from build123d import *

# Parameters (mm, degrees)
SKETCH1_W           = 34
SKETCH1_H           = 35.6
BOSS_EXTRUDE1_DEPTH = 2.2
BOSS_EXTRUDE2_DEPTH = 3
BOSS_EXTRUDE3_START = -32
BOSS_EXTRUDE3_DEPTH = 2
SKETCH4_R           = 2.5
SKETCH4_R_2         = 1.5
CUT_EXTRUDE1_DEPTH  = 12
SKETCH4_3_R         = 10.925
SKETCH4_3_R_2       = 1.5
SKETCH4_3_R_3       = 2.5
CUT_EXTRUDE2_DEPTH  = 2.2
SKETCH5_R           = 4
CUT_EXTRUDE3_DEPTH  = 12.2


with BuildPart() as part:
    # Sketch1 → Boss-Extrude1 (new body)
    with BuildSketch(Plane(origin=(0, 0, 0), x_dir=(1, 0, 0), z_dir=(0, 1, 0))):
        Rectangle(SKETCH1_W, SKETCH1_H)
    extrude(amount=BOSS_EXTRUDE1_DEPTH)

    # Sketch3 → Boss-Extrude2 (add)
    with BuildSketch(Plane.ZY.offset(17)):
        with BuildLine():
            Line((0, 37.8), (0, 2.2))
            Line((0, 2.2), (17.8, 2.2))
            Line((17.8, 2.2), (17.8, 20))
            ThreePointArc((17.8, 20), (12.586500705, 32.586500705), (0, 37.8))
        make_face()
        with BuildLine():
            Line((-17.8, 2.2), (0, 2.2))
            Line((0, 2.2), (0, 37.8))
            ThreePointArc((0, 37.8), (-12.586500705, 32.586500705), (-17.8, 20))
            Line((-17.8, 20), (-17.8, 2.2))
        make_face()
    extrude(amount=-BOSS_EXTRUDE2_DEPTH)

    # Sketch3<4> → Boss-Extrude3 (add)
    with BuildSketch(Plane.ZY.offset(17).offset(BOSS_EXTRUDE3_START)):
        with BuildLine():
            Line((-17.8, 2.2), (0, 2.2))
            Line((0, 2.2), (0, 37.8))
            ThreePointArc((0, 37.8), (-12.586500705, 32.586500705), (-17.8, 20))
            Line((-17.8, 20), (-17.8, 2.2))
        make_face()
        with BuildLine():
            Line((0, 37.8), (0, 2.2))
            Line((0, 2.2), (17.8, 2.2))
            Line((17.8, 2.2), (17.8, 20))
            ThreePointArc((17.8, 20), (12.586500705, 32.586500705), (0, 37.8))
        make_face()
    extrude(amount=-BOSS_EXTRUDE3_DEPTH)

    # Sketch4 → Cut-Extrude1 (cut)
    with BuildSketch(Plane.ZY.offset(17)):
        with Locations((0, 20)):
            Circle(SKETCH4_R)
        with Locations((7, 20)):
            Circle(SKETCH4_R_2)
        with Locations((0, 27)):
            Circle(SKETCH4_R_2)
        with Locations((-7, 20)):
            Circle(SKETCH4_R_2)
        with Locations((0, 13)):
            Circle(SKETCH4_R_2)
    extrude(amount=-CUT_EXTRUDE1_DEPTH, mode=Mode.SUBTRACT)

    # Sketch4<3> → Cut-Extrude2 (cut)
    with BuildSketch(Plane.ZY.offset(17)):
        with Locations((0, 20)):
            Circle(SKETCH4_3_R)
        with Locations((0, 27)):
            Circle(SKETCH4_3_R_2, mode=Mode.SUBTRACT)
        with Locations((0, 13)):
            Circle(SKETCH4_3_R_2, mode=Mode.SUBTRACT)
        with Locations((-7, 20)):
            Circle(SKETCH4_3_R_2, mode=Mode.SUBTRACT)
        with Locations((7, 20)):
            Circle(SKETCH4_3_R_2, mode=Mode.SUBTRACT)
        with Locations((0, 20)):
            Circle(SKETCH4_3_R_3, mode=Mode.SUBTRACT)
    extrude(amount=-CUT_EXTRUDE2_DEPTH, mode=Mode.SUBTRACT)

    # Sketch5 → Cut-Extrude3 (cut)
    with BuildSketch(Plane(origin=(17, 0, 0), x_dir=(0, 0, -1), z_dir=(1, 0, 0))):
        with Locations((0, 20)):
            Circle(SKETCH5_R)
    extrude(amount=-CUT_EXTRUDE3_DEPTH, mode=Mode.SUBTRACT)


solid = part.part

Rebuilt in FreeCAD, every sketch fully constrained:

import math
import FreeCAD as App
import Part
import Sketcher

V = App.Vector


def add_polygon(sketch, points):
    """Adds a closed chain of lines whose ends are joined by coincident constraints."""
    first, n = sketch.GeometryCount, len(points)
    for a, b in zip(points, points[1:] + points[:1]):
        sketch.addGeometry(Part.LineSegment(App.Vector(*a, 0), App.Vector(*b, 0)), False)
    for i in range(n):
        sketch.addConstraint(Sketcher.Constraint("Coincident", first + i, 2, first + (i + 1) % n, 1))

doc = App.newDocument("Part")
params = doc.addObject("Spreadsheet::Sheet", "Params")
for row, (alias, value) in enumerate([
    ("sketch1_width", "34 mm"),
    ("sketch1_height", "35.6 mm"),
    ("pad1_length", "2.2 mm"),
    ("sketch2_radius", "17.8 mm"),
    ("sketch2_width", "17.8 mm"),
    ("pad2_length", "3 mm"),
    ("sketch3_radius", "17.8 mm"),
    ("sketch3_width", "17.8 mm"),
    ("pad3_length", "2 mm"),
    ("sketch4_diameter", "5 mm"),
    ("sketch4_diameter2", "3 mm"),
    ("pocket1_length", "12 mm"),
    ("sketch5_diameter", "3 mm"),
    ("sketch5_diameter2", "5 mm"),
    ("sketch5_diameter3", "21.85 mm"),
    ("pocket2_length", "2.2 mm"),
    ("sketch6_diameter", "8 mm"),
    ("pocket3_length", "12.2 mm"),
], start=1):
    params.set(f"A{row}", alias)
    params.set(f"B{row}", "=" + value)
    params.setAlias(f"B{row}", alias)

body = doc.addObject("PartDesign::Body", "Body")

sketch1 = doc.addObject("Sketcher::SketchObject", "Sketch")
body.addObject(sketch1)
sketch1.AttachmentSupport = (doc.XZ_Plane, [""])
sketch1.MapMode = "FlatFace"
add_polygon(sketch1, [(-17, -18), (-17, 18), (17, 18), (17, -18)])
sketch1.addConstraint([
    Sketcher.Constraint("Vertical", 0),
    Sketcher.Constraint("Horizontal", 1),
    Sketcher.Constraint("Vertical", 2),
    Sketcher.Constraint("Horizontal", 3),
    Sketcher.Constraint("Symmetric", 0, 2, 2, 2, -1, 1),
    Sketcher.Constraint("DistanceX", 1, 1, 1, 2, 34.0),
    Sketcher.Constraint("DistanceY", 0, 1, 0, 2, 35.6),
])
sketch1.setExpression("Constraints[9]", "Params.sketch1_width")
sketch1.setExpression("Constraints[10]", "Params.sketch1_height")
pad1 = doc.addObject("PartDesign::Pad", "Pad")
body.addObject(pad1)
pad1.Profile = sketch1
pad1.setExpression("Length", "Params.pad1_length")
pad1.Reversed = True

sketch2 = doc.addObject("Sketcher::SketchObject", "Sketch001")
body.addObject(sketch2)
sketch2.AttachmentSupport = (doc.YZ_Plane, [""])
sketch2.MapMode = "FlatFace"
sketch2.AttachmentOffset = App.Placement(V(0, 0, -17), App.Rotation())
sketch2.addGeometry([
    Part.LineSegment(V(2, 18, 0), V(20, 18, 0)),
    Part.ArcOfCircle(Part.Circle(V(20, 0, 0), V(0, 0, 1), 18), math.radians(0), math.radians(90)),
    Part.ArcOfCircle(Part.Circle(V(20, 0, 0), V(0, 0, 1), 18), math.radians(-90), math.radians(0)),
    Part.LineSegment(V(20, -18, 0), V(2, -18, 0)),
    Part.LineSegment(V(2, -18, 0), V(2, 18, 0)),
], False)
sketch2.addConstraint([
    Sketcher.Constraint("Tangent", 0, 2, 1, 2),
    Sketcher.Constraint("Tangent", 1, 1, 2, 2),
    Sketcher.Constraint("Tangent", 2, 1, 3, 1),
    Sketcher.Constraint("Coincident", 3, 2, 4, 1),
    Sketcher.Constraint("Coincident", 4, 2, 0, 1),
    Sketcher.Constraint("Horizontal", 0),
    Sketcher.Constraint("Horizontal", 3),
    Sketcher.Constraint("Vertical", 4),
    Sketcher.Constraint("Equal", 1, 2),
    Sketcher.Constraint("PointOnObject", 1, 3, -1),
    Sketcher.Constraint("PointOnObject", 1, 1, -1),
    Sketcher.Constraint("Radius", 1, 17.8),
    Sketcher.Constraint("DistanceX", 0, 1, 0, 2, 17.8),
    Sketcher.Constraint("DistanceX", -1, 1, 1, 3, 20.0),
])
sketch2.setExpression("Constraints[11]", "Params.sketch2_radius")
sketch2.setExpression("Constraints[12]", "Params.sketch2_width")
pad2 = doc.addObject("PartDesign::Pad", "Pad001")
body.addObject(pad2)
pad2.Profile = sketch2
pad2.setExpression("Length", "Params.pad2_length")

sketch3 = doc.addObject("Sketcher::SketchObject", "Sketch002")
body.addObject(sketch3)
sketch3.AttachmentSupport = (doc.YZ_Plane, [""])
sketch3.MapMode = "FlatFace"
sketch3.AttachmentOffset = App.Placement(V(0, 0, 15), App.Rotation())
sketch3.addGeometry([
    Part.LineSegment(V(2, -18, 0), V(2, 18, 0)),
    Part.LineSegment(V(2, 18, 0), V(20, 18, 0)),
    Part.ArcOfCircle(Part.Circle(V(20, 0, 0), V(0, 0, 1), 18), math.radians(0), math.radians(90)),
    Part.ArcOfCircle(Part.Circle(V(20, 0, 0), V(0, 0, 1), 18), math.radians(-90), math.radians(0)),
    Part.LineSegment(V(20, -18, 0), V(2, -18, 0)),
], False)
sketch3.addConstraint([
    Sketcher.Constraint("Coincident", 0, 2, 1, 1),
    Sketcher.Constraint("Tangent", 1, 2, 2, 2),
    Sketcher.Constraint("Tangent", 2, 1, 3, 2),
    Sketcher.Constraint("Tangent", 3, 1, 4, 1),
    Sketcher.Constraint("Coincident", 4, 2, 0, 1),
    Sketcher.Constraint("Vertical", 0),
    Sketcher.Constraint("Horizontal", 1),
    Sketcher.Constraint("Horizontal", 4),
    Sketcher.Constraint("Equal", 2, 3),
    Sketcher.Constraint("PointOnObject", 2, 3, -1),
    Sketcher.Constraint("PointOnObject", 2, 1, -1),
    Sketcher.Constraint("Radius", 2, 17.8),
    Sketcher.Constraint("DistanceX", 1, 1, 1, 2, 17.8),
    Sketcher.Constraint("DistanceX", -1, 1, 2, 3, 20.0),
])
sketch3.setExpression("Constraints[11]", "Params.sketch3_radius")
sketch3.setExpression("Constraints[12]", "Params.sketch3_width")
pad3 = doc.addObject("PartDesign::Pad", "Pad002")
body.addObject(pad3)
pad3.Profile = sketch3
pad3.setExpression("Length", "Params.pad3_length")

sketch4 = doc.addObject("Sketcher::SketchObject", "Sketch003")
body.addObject(sketch4)
sketch4.AttachmentSupport = (doc.YZ_Plane, [""])
sketch4.MapMode = "FlatFace"
sketch4.AttachmentOffset = App.Placement(V(0, 0, -17), App.Rotation())
sketch4.addGeometry([
    Part.Circle(V(20, 0, 0), V(0, 0, 1), 2.5),
    Part.Circle(V(20, 7, 0), V(0, 0, 1), 1.5),
    Part.Circle(V(27, 0, 0), V(0, 0, 1), 1.5),
    Part.Circle(V(20, -7, 0), V(0, 0, 1), 1.5),
    Part.Circle(V(13, 0, 0), V(0, 0, 1), 1.5),
], False)
sketch4.addConstraint([
    Sketcher.Constraint("Equal", 1, 2),
    Sketcher.Constraint("Equal", 2, 3),
    Sketcher.Constraint("Equal", 3, 4),
    Sketcher.Constraint("Symmetric", 1, 3, 3, 3, -1),
    Sketcher.Constraint("PointOnObject", 0, 3, -1),
    Sketcher.Constraint("PointOnObject", 2, 3, -1),
    Sketcher.Constraint("PointOnObject", 4, 3, -1),
    Sketcher.Constraint("Vertical", 0, 3, 1, 3),
    Sketcher.Constraint("Diameter", 0, 5.0),
    Sketcher.Constraint("Diameter", 1, 3.0),
    Sketcher.Constraint("DistanceX", -1, 1, 0, 3, 20.0),
    Sketcher.Constraint("DistanceY", -1, 1, 1, 3, 7.0),
    Sketcher.Constraint("DistanceX", -1, 1, 2, 3, 27.0),
    Sketcher.Constraint("DistanceX", -1, 1, 4, 3, 13.0),
])
sketch4.setExpression("Constraints[8]", "Params.sketch4_diameter")
sketch4.setExpression("Constraints[9]", "Params.sketch4_diameter2")
pocket1 = doc.addObject("PartDesign::Pocket", "Pocket")
body.addObject(pocket1)
pocket1.Profile = sketch4
pocket1.setExpression("Length", "Params.pocket1_length")
pocket1.Reversed = True

sketch5 = doc.addObject("Sketcher::SketchObject", "Sketch004")
body.addObject(sketch5)
sketch5.AttachmentSupport = (doc.YZ_Plane, [""])
sketch5.MapMode = "FlatFace"
sketch5.AttachmentOffset = App.Placement(V(0, 0, -17), App.Rotation())
sketch5.addGeometry([
    Part.Circle(V(20, 0, 0), V(0, 0, 1), 10.9),
    Part.Circle(V(20, -7, 0), V(0, 0, 1), 1.5),
    Part.Circle(V(13, 0, 0), V(0, 0, 1), 1.5),
    Part.Circle(V(20, 7, 0), V(0, 0, 1), 1.5),
    Part.Circle(V(20, 0, 0), V(0, 0, 1), 2.5),
    Part.Circle(V(27, 0, 0), V(0, 0, 1), 1.5),
], False)
sketch5.addConstraint([
    Sketcher.Constraint("Coincident", 4, 3, 0, 3),
    Sketcher.Constraint("Equal", 1, 2),
    Sketcher.Constraint("Equal", 2, 3),
    Sketcher.Constraint("Equal", 3, 5),
    Sketcher.Constraint("Symmetric", 1, 3, 3, 3, -1),
    Sketcher.Constraint("PointOnObject", 0, 3, -1),
    Sketcher.Constraint("PointOnObject", 2, 3, -1),
    Sketcher.Constraint("PointOnObject", 5, 3, -1),
    Sketcher.Constraint("Vertical", 0, 3, 1, 3),
    Sketcher.Constraint("Diameter", 1, 3.0),
    Sketcher.Constraint("Diameter", 4, 5.0),
    Sketcher.Constraint("Diameter", 0, 21.85),
    Sketcher.Constraint("DistanceX", -1, 1, 0, 3, 20.0),
    Sketcher.Constraint("DistanceY", 1, 3, -1, 1, 7.0),
    Sketcher.Constraint("DistanceX", -1, 1, 2, 3, 13.0),
    Sketcher.Constraint("DistanceX", -1, 1, 5, 3, 27.0),
])
sketch5.setExpression("Constraints[9]", "Params.sketch5_diameter")
sketch5.setExpression("Constraints[10]", "Params.sketch5_diameter2")
sketch5.setExpression("Constraints[11]", "Params.sketch5_diameter3")
pocket2 = doc.addObject("PartDesign::Pocket", "Pocket001")
body.addObject(pocket2)
pocket2.Profile = sketch5
pocket2.setExpression("Length", "Params.pocket2_length")
pocket2.Reversed = True

sketch6 = doc.addObject("Sketcher::SketchObject", "Sketch005")
body.addObject(sketch6)
sketch6.AttachmentSupport = (doc.YZ_Plane, [""])
sketch6.MapMode = "FlatFace"
sketch6.AttachmentOffset = App.Placement(V(0, 0, 17), App.Rotation())
sketch6.addGeometry(Part.Circle(V(20, 0, 0), V(0, 0, 1), 4), False)
sketch6.addConstraint([
    Sketcher.Constraint("PointOnObject", 0, 3, -1),
    Sketcher.Constraint("Diameter", 0, 8.0),
    Sketcher.Constraint("DistanceX", -1, 1, 0, 3, 20.0),
])
sketch6.setExpression("Constraints[1]", "Params.sketch6_diameter")
pocket3 = doc.addObject("PartDesign::Pocket", "Pocket002")
body.addObject(pocket3)
pocket3.Profile = sketch6
pocket3.setExpression("Length", "Params.pocket3_length")

doc.recompute()
